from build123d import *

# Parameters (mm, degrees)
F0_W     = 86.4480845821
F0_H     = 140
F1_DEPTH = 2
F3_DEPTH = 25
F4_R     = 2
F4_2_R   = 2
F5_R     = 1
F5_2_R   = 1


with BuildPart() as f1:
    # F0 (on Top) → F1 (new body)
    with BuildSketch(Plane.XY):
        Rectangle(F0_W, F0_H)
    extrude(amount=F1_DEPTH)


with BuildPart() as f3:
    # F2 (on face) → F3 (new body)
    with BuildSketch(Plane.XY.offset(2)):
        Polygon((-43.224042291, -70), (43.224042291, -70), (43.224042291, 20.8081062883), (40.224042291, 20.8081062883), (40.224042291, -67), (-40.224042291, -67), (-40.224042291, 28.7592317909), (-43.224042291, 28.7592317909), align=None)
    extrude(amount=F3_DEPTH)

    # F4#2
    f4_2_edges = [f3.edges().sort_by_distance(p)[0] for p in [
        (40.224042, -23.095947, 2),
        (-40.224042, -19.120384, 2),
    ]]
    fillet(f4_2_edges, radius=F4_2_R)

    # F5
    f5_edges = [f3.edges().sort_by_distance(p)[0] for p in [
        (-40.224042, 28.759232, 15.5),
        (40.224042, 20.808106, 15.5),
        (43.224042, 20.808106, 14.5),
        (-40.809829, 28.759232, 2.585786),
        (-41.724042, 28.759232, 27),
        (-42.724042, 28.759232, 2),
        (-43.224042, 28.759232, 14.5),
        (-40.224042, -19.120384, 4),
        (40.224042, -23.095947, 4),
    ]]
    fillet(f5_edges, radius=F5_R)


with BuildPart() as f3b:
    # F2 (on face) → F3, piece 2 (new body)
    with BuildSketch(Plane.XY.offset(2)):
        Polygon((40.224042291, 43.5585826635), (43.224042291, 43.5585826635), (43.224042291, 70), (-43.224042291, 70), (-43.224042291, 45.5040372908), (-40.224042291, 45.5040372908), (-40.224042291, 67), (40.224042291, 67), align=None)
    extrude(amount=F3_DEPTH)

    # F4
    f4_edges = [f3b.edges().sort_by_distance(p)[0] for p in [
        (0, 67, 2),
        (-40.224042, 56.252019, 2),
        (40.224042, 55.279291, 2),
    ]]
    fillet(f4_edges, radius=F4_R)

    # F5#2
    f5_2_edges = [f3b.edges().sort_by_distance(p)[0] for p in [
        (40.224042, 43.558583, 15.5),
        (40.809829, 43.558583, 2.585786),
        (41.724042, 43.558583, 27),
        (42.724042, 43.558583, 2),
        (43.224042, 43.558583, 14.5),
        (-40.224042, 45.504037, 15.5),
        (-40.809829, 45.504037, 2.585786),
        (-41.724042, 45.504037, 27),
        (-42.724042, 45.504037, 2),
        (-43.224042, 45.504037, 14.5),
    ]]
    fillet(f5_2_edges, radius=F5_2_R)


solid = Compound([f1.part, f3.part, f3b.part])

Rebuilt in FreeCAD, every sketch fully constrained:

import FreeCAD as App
import Part
import Sketcher
Q = App.Units.Quantity


def edges_at(feature, points):
    """Names of the edges that pass closest to the given points."""
    edges = feature.Shape.Edges
    near = lambda p: min(range(len(edges)), key=lambda i: edges[i].distToShape(Part.Vertex(*p))[0])
    return sorted({f"Edge{near(p) + 1}" for p in points})

doc = App.newDocument("Part")
body = doc.addObject("PartDesign::Body", "Body")

# Sketch on XY plane
sketch1 = body.newObject("Sketcher::SketchObject", "Sketch")
sketch1.AttachmentSupport = (doc.getObject("XY_Plane"), [""])
sketch1.MapMode = "FlatFace"
sketch1.addGeometry([
    Part.LineSegment(App.Vector(-43, 70, 0), App.Vector(-43, -70, 0)),
    Part.LineSegment(App.Vector(-43, -70, 0), App.Vector(43, -70, 0)),
    Part.LineSegment(App.Vector(43, -70, 0), App.Vector(43, 70, 0)),
    Part.LineSegment(App.Vector(43, 70, 0), App.Vector(-43, 70, 0)),
], False)
sketch1.addConstraint([
    Sketcher.Constraint("Coincident", 0, 2, 1, 1),
    Sketcher.Constraint("Coincident", 1, 2, 2, 1),
    Sketcher.Constraint("Coincident", 2, 2, 3, 1),
    Sketcher.Constraint("Coincident", 3, 2, 0, 1),
    Sketcher.Constraint("Vertical", 0),
    Sketcher.Constraint("Horizontal", 1),
    Sketcher.Constraint("Vertical", 2),
    Sketcher.Constraint("Horizontal", 3),
    Sketcher.Constraint("Symmetric", 0, 2, 2, 2, -1, 1),
    Sketcher.Constraint("DistanceY", 0, 2, 0, 1, Q("140 mm")),
    Sketcher.Constraint("DistanceX", 1, 1, 1, 2, Q("86.448085 mm")),
])
pad1 = body.newObject("PartDesign::Pad", "Pad")
pad1.Profile = sketch1
pad1.Length = 2
body2 = doc.addObject("PartDesign::Body", "Body001")

# Sketch on XY plane
sketch2 = body2.newObject("Sketcher::SketchObject", "Sketch001")
sketch2.AttachmentSupport = (doc.getObject("XY_Plane001"), [""])
sketch2.MapMode = "FlatFace"
sketch2.AttachmentOffset = App.Placement(App.Vector(0, 0, 2), App.Rotation())
sketch2.addGeometry([
    Part.LineSegment(App.Vector(-43.2, -70, 0), App.Vector(43.2, -70, 0)),  # 0
    Part.LineSegment(App.Vector(43.2, -70, 0), App.Vector(43.2, 20.8, 0)),  # 1
    Part.LineSegment(App.Vector(43.2, 20.8, 0), App.Vector(40.2, 20.8, 0)),  # 2
    Part.LineSegment(App.Vector(40.2, 20.8, 0), App.Vector(40.2, -67, 0)),  # 3
    Part.LineSegment(App.Vector(40.2, -67, 0), App.Vector(-40.2, -67, 0)),  # 4
    Part.LineSegment(App.Vector(-40.2, -67, 0), App.Vector(-40.2, 28.8, 0)),  # 5
    Part.LineSegment(App.Vector(-40.2, 28.8, 0), App.Vector(-43.2, 28.8, 0)),  # 6
    Part.LineSegment(App.Vector(-43.2, 28.8, 0), App.Vector(-43.2, -70, 0)),  # 7
], False)
sketch2.addConstraint([
    Sketcher.Constraint("Coincident", 0, 2, 1, 1),
    Sketcher.Constraint("Coincident", 1, 2, 2, 1),
    Sketcher.Constraint("Coincident", 2, 2, 3, 1),
    Sketcher.Constraint("Coincident", 3, 2, 4, 1),
    Sketcher.Constraint("Coincident", 4, 2, 5, 1),
    Sketcher.Constraint("Coincident", 5, 2, 6, 1),
    Sketcher.Constraint("Coincident", 6, 2, 7, 1),
    Sketcher.Constraint("Coincident", 7, 2, 0, 1),
    Sketcher.Constraint("Horizontal", 0),
    Sketcher.Constraint("Vertical", 1),
    Sketcher.Constraint("Horizontal", 2),
    Sketcher.Constraint("Vertical", 3),
    Sketcher.Constraint("Horizontal", 4),
    Sketcher.Constraint("Vertical", 5),
    Sketcher.Constraint("Horizontal", 6),
    Sketcher.Constraint("Vertical", 7),
    Sketcher.Constraint("Equal", 2, 6),
    Sketcher.Constraint("DistanceX", 2, 2, 2, 1, Q("3 mm")),
    Sketcher.Constraint("DistanceY", 0, 2, -1, 1, Q("70 mm")),
    Sketcher.Constraint("DistanceY", 3, 2, -1, 1, Q("67 mm")),
    Sketcher.Constraint("DistanceY", 5, 1, 5, 2, Q("95.759232 mm")),
    Sketcher.Constraint("DistanceX", 0, 1, 0, 2, Q("86.448085 mm")),
    Sketcher.Constraint("DistanceY", 1, 1, 1, 2, Q("90.808106 mm")),
    Sketcher.Constraint("DistanceX", -1, 1, 0, 2, Q("43.224042 mm")),
])
pad2 = body2.newObject("PartDesign::Pad", "Pad001")
pad2.Profile = sketch2
pad2.Length = 25
doc.recompute()

fillet = body2.newObject("PartDesign::Fillet", "Fillet")
fillet.Base = (pad2, edges_at(pad2, [(40.224, -23.096, 2), (-40.224, -19.12, 2)]))
fillet.Radius = 2
doc.recompute()

fillet2 = body2.newObject("PartDesign::Fillet", "Fillet001")
fillet2.Base = (fillet, edges_at(fillet, [
    (-40.224, 28.759, 15.5),
    (40.224, 20.808, 15.5),
    (43.224, 20.808, 14.5),
    (-40.81, 28.759, 2.586),
    (-41.724, 28.759, 27),
    (-42.724, 28.759, 2),
    (-43.224, 28.759, 14.5),
    (-40.224, -19.12, 4),
    (40.224, -23.096, 4),
]))
fillet2.Radius = 1
body3 = doc.addObject("PartDesign::Body", "Body002")

# Sketch on XY plane
sketch3 = body3.newObject("Sketcher::SketchObject", "Sketch002")
sketch3.AttachmentSupport = (doc.getObject("XY_Plane002"), [""])
sketch3.MapMode = "FlatFace"
sketch3.AttachmentOffset = App.Placement(App.Vector(0, 0, 2), App.Rotation())
sketch3.addGeometry([
    Part.LineSegment(App.Vector(40.2, 43.6, 0), App.Vector(43.2, 43.6, 0)),  # 0
    Part.LineSegment(App.Vector(43.2, 43.6, 0), App.Vector(43.2, 70, 0)),  # 1
    Part.LineSegment(App.Vector(43.2, 70, 0), App.Vector(-43.2, 70, 0)),  # 2
    Part.LineSegment(App.Vector(-43.2, 70, 0), App.Vector(-43.2, 45.5, 0)),  # 3
    Part.LineSegment(App.Vector(-43.2, 45.5, 0), App.Vector(-40.2, 45.5, 0)),  # 4
    Part.LineSegment(App.Vector(-40.2, 45.5, 0), App.Vector(-40.2, 67, 0)),  # 5
    Part.LineSegment(App.Vector(-40.2, 67, 0), App.Vector(40.2, 67, 0)),  # 6
    Part.LineSegment(App.Vector(40.2, 67, 0), App.Vector(40.2, 43.6, 0)),  # 7
], False)
sketch3.addConstraint([
    Sketcher.Constraint("Coincident", 0, 2, 1, 1),
    Sketcher.Constraint("Coincident", 1, 2, 2, 1),
    Sketcher.Constraint("Coincident", 2, 2, 3, 1),
    Sketcher.Constraint("Coincident", 3, 2, 4, 1),
    Sketcher.Constraint("Coincident", 4, 2, 5, 1),
    Sketcher.Constraint("Coincident", 5, 2, 6, 1),
    Sketcher.Constraint("Coincident", 6, 2, 7, 1),
    Sketcher.Constraint("Coincident", 7, 2, 0, 1),
    Sketcher.Constraint("Horizontal", 0),
    Sketcher.Constraint("Vertical", 1),
    Sketcher.Constraint("Horizontal", 2),
    Sketcher.Constraint("Vertical", 3),
    Sketcher.Constraint("Horizontal", 4),
    Sketcher.Constraint("Vertical", 5),
    Sketcher.Constraint("Horizontal", 6),
    Sketcher.Constraint("Vertical", 7),
    Sketcher.Constraint("Equal", 0, 4),
    Sketcher.Constraint("DistanceX", 0, 1, 0, 2, Q("3 mm")),
    Sketcher.Constraint("DistanceY", -1, 1, 1, 2, Q("70 mm")),
    Sketcher.Constraint("DistanceY", -1, 1, 5, 2, Q("67 mm")),
    Sketcher.Constraint("DistanceX", 2, 2, 2, 1, Q("86.448085 mm")),
    Sketcher.Constraint("DistanceY", 1, 1, 1, 2, Q("26.441417 mm")),
    Sketcher.Constraint("DistanceY", 3, 2, 3, 1, Q("24.495963 mm")),
    Sketcher.Constraint("DistanceX", -1, 1, 0, 2, Q("43.224042 mm")),
])
pad3 = body3.newObject("PartDesign::Pad", "Pad002")
pad3.Profile = sketch3
pad3.Length = 25
doc.recompute()

fillet3 = body3.newObject("PartDesign::Fillet", "Fillet002")
fillet3.Base = (pad3, edges_at(pad3, [(0, 67, 2), (-40.224, 56.252, 2), (40.224, 55.279, 2)]))
fillet3.Radius = 2
doc.recompute()

fillet4 = body3.newObject("PartDesign::Fillet", "Fillet003")
fillet4.Base = (fillet3, edges_at(fillet3, [
    (40.224, 43.559, 15.5),
    (40.81, 43.559, 2.586),
    (41.724, 43.559, 27),
    (42.724, 43.559, 2),
    (43.224, 43.559, 14.5),
    (-40.224, 45.504, 15.5),
    (-40.81, 45.504, 2.586),
    (-41.724, 45.504, 27),
    (-42.724, 45.504, 2),
    (-43.224, 45.504, 14.5),
]))
fillet4.Radius = 1

doc.recompute()
